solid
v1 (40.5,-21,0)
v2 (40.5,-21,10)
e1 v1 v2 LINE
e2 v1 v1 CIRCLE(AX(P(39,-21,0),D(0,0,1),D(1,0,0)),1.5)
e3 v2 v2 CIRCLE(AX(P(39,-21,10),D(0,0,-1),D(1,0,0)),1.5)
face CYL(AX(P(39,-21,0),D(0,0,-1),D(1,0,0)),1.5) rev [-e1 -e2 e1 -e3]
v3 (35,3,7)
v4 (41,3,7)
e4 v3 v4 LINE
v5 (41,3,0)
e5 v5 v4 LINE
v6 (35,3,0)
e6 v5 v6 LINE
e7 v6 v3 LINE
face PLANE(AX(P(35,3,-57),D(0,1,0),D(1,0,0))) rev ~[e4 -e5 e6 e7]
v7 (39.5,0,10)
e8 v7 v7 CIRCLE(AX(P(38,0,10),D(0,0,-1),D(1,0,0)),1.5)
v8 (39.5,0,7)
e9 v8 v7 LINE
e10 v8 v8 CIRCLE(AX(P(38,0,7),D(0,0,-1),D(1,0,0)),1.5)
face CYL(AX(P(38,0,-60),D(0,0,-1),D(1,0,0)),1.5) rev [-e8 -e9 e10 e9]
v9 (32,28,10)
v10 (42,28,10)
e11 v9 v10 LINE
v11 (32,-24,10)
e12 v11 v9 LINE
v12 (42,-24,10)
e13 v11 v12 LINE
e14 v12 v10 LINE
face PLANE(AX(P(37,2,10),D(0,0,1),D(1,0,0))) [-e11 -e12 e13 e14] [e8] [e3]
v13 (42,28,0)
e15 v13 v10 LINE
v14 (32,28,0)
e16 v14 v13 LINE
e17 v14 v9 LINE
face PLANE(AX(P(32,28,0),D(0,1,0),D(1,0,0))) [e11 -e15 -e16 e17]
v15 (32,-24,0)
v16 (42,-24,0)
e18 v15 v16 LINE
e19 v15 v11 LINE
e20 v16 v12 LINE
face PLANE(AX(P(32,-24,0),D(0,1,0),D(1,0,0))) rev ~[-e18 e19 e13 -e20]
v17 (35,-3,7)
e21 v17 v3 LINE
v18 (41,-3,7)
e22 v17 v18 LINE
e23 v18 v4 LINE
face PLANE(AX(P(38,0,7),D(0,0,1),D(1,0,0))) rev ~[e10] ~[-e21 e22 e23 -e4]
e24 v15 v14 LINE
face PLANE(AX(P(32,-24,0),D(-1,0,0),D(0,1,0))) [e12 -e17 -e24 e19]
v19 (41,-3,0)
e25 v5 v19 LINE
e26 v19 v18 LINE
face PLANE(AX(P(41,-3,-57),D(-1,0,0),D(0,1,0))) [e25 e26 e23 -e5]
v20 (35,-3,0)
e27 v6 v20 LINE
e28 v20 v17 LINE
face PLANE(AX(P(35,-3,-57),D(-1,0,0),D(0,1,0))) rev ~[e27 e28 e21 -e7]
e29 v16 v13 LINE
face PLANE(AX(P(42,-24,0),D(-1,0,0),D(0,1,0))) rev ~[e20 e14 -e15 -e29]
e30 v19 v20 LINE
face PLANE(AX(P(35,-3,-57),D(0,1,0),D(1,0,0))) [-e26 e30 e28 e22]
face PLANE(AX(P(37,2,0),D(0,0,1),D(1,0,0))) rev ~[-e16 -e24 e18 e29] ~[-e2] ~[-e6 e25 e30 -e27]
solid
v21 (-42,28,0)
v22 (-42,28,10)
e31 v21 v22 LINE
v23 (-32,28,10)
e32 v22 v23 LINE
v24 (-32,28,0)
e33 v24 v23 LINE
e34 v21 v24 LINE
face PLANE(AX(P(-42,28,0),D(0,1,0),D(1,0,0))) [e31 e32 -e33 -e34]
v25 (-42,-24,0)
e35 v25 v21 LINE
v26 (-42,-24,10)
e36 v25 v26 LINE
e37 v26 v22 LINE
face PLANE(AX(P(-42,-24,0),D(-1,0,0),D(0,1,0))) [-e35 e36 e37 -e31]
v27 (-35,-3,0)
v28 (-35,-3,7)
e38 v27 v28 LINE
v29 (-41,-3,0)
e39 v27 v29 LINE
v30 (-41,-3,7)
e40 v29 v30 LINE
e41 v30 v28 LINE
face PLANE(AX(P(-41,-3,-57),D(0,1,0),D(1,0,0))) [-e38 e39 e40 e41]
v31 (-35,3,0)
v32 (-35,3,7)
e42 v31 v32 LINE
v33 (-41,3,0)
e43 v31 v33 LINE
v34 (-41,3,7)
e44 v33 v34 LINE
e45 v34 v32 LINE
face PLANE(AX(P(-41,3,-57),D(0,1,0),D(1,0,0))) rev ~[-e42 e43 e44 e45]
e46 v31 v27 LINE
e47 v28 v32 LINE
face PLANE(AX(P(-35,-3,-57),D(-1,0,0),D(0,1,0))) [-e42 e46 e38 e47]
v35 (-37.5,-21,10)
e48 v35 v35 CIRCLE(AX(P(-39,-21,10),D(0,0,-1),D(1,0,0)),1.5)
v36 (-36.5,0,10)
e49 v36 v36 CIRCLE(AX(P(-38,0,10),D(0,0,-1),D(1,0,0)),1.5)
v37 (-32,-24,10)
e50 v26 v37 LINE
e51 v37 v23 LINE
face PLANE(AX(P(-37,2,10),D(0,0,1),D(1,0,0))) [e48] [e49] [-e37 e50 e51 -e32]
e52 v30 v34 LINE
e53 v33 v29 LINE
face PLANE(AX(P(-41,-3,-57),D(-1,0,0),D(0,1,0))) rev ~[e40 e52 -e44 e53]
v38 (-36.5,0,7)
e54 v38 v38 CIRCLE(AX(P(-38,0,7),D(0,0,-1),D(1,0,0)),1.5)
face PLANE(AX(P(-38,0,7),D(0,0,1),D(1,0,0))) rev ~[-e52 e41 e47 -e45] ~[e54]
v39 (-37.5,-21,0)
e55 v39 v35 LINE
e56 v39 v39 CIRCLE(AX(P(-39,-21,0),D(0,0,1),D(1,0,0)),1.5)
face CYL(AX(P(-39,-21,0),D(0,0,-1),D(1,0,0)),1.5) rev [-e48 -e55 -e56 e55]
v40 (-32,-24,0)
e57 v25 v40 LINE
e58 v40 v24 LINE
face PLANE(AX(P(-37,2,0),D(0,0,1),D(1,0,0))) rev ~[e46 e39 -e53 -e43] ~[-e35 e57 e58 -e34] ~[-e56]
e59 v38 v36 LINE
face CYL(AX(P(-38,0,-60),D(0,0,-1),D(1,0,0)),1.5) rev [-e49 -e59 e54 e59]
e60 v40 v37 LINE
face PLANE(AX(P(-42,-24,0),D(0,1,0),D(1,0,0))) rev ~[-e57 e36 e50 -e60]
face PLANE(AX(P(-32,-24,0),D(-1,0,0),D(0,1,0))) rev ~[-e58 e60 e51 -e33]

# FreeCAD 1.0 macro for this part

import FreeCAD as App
import Part
import Sketcher

V = App.Vector


def add_polygon(sketch, points):
    """Adds a closed chain of lines whose ends are joined by coincident constraints."""
    first, n = sketch.GeometryCount, len(points)
    for a, b in zip(points, points[1:] + points[:1]):
        sketch.addGeometry(Part.LineSegment(App.Vector(*a, 0), App.Vector(*b, 0)), False)
    for i in range(n):
        sketch.addConstraint(Sketcher.Constraint("Coincident", first + i, 2, first + (i + 1) % n, 1))

doc = App.newDocument("Part")
body = doc.addObject("PartDesign::Body", "Body")

sketch1 = doc.addObject("Sketcher::SketchObject", "Sketch")
body.addObject(sketch1)
sketch1.AttachmentSupport = (doc.XY_Plane, [""])
sketch1.MapMode = "FlatFace"
sketch1.AttachmentOffset = App.Placement(V(0, 0, -93), App.Rotation())
add_polygon(sketch1, [(87, 3), (87, -3), (93, -3), (93, 3)])
sketch1.addConstraint(Sketcher.Constraint("Vertical", 0))
sketch1.addConstraint(Sketcher.Constraint("Horizontal", 1))
sketch1.addConstraint(Sketcher.Constraint("Vertical", 2))
sketch1.addConstraint(Sketcher.Constraint("Horizontal", 3))
sketch1.addConstraint(Sketcher.Constraint("Equal", 3, 0))
sketch1.addConstraint(Sketcher.Constraint("DistanceX", 1, 1, 1, 2, 6.0))
sketch1.addConstraint(Sketcher.Constraint("DistanceX", -1, 1, 0, 2, 87.0))
sketch1.addConstraint(Sketcher.Constraint("DistanceY", 0, 2, -1, 1, 3.0))
pad1 = doc.addObject("PartDesign::Pad", "Pad")
body.addObject(pad1)
pad1.Profile = sketch1
pad1.Length = 64
body2 = doc.addObject("PartDesign::Body", "Body001")
body2.AllowCompound = True

sketch2 = doc.addObject("Sketcher::SketchObject", "Sketch001")
body2.addObject(sketch2)
sketch2.AttachmentSupport = (doc.getObject("XY_Plane001"), [""])
sketch2.MapMode = "FlatFace"
sketch2.AttachmentOffset = App.Placement(V(0, 0, -93), App.Rotation())
add_polygon(sketch2, [(11, 3), (11, -3), (17, -3), (17, 3)])
sketch2.addConstraint(Sketcher.Constraint("Vertical", 0))
sketch2.addConstraint(Sketcher.Constraint("Horizontal", 1))
sketch2.addConstraint(Sketcher.Constraint("Vertical", 2))
sketch2.addConstraint(Sketcher.Constraint("Horizontal", 3))
sketch2.addConstraint(Sketcher.Constraint("Equal", 3, 0))
sketch2.addConstraint(Sketcher.Constraint("DistanceX", 1, 1, 1, 2, 6.0))
sketch2.addConstraint(Sketcher.Constraint("DistanceX", -1, 1, 0, 2, 11.0))
sketch2.addConstraint(Sketcher.Constraint("DistanceY", 0, 2, -1, 1, 3.0))
pad2 = doc.addObject("PartDesign::Pad", "Pad001")
body2.addObject(pad2)
pad2.Profile = sketch2
pad2.Length = 64
doc.recompute()

boolean = doc.addObject("PartDesign::Boolean", "Boolean")
body2.addObject(boolean)
boolean.Type = "Fuse"
boolean.addObjects([body])
body3 = doc.addObject("PartDesign::Body", "Body002")
body3.AllowCompound = True
doc.recompute()

body2.Placement = App.Placement(V(-52, 0, 36), App.Rotation(V(0, 0, 1), 0))
boolean2 = doc.addObject("PartDesign::Boolean", "Boolean001")
body3.addObject(boolean2)
boolean2.Type = "Fuse"
boolean2.addObjects([body2])
body4 = doc.addObject("PartDesign::Body", "Body003")

sketch3 = doc.addObject("Sketcher::SketchObject", "Sketch002")
body4.addObject(sketch3)
sketch3.AttachmentSupport = (doc.getObject("XY_Plane003"), [""])
sketch3.MapMode = "FlatFace"
sketch3.AttachmentOffset = App.Placement(V(0, 0, -42), App.Rotation())
sketch3.addGeometry(Part.Circle(V(78, 41, 0), V(0, 0, 1), 1.5), False)
sketch3.addConstraint(Sketcher.Constraint("Diameter", 0, 3.0))
sketch3.addConstraint(Sketcher.Constraint("DistanceX", -1, 1, 0, 3, 78.0))
sketch3.addConstraint(Sketcher.Constraint("DistanceY", -1, 1, 0, 3, 41.0))
pad3 = doc.addObject("PartDesign::Pad", "Pad002")
body4.addObject(pad3)
pad3.Profile = sketch3
pad3.Length = 32
body5 = doc.addObject("PartDesign::Body", "Body004")
body5.AllowCompound = True

sketch4 = doc.addObject("Sketcher::SketchObject", "Sketch003")
body5.addObject(sketch4)
sketch4.AttachmentSupport = (doc.getObject("XY_Plane004"), [""])
sketch4.MapMode = "FlatFace"
sketch4.AttachmentOffset = App.Placement(V(0, 0, -42), App.Rotation())
sketch4.addGeometry(Part.Circle(V(26, 41, 0), V(0, 0, 1), 1.5), False)
sketch4.addConstraint(Sketcher.Constraint("Diameter", 0, 3.0))
sketch4.addConstraint(Sketcher.Constraint("DistanceX", -1, 1, 0, 3, 26.0))
sketch4.addConstraint(Sketcher.Constraint("DistanceY", -1, 1, 0, 3, 41.0))
pad4 = doc.addObject("PartDesign::Pad", "Pad003")
body5.addObject(pad4)
pad4.Profile = sketch4
pad4.Length = 32
doc.recompute()

boolean3 = doc.addObject("PartDesign::Boolean", "Boolean002")
body5.addObject(boolean3)
boolean3.Type = "Fuse"
boolean3.addObjects([body4])
body6 = doc.addObject("PartDesign::Body", "Body005")
body6.AllowCompound = True
doc.recompute()

body5.Placement = App.Placement(V(-52, 0, 36), App.Rotation(V(0, 0, 1), 0))
boolean4 = doc.addObject("PartDesign::Boolean", "Boolean003")
body6.addObject(boolean4)
boolean4.Type = "Fuse"
boolean4.addObjects([body5])
body7 = doc.addObject("PartDesign::Body", "Body006")

sketch5 = doc.addObject("Sketcher::SketchObject", "Sketch004")
body7.addObject(sketch5)
sketch5.AttachmentSupport = (doc.getObject("XY_Plane006"), [""])
sketch5.MapMode = "FlatFace"
sketch5.AttachmentOffset = App.Placement(V(0, 0, -60), App.Rotation())
sketch5.addGeometry(Part.Circle(V(14, 0, 0), V(0, 0, 1), 1.5), False)
sketch5.addConstraint(Sketcher.Constraint("PointOnObject", 0, 3, -1))
sketch5.addConstraint(Sketcher.Constraint("Diameter", 0, 3.0))
sketch5.addConstraint(Sketcher.Constraint("DistanceX", -1, 1, 0, 3, 14.0))
pad5 = doc.addObject("PartDesign::Pad", "Pad004")
body7.addObject(pad5)
pad5.Profile = sketch5
pad5.Length = 100
body8 = doc.addObject("PartDesign::Body", "Body007")
body8.AllowCompound = True

sketch6 = doc.addObject("Sketcher::SketchObject", "Sketch005")
body8.addObject(sketch6)
sketch6.AttachmentSupport = (doc.getObject("XY_Plane007"), [""])
sketch6.MapMode = "FlatFace"
sketch6.AttachmentOffset = App.Placement(V(0, 0, -60), App.Rotation())
sketch6.addGeometry(Part.Circle(V(90, 0, 0), V(0, 0, 1), 1.5), False)
sketch6.addConstraint(Sketcher.Constraint("PointOnObject", 0, 3, -1))
sketch6.addConstraint(Sketcher.Constraint("Diameter", 0, 3.0))
sketch6.addConstraint(Sketcher.Constraint("DistanceX", -1, 1, 0, 3, 90.0))
pad6 = doc.addObject("PartDesign::Pad", "Pad005")
body8.addObject(pad6)
pad6.Profile = sketch6
pad6.Length = 100
doc.recompute()

boolean5 = doc.addObject("PartDesign::Boolean", "Boolean004")
body8.addObject(boolean5)
boolean5.Type = "Fuse"
boolean5.addObjects([body7])
body9 = doc.addObject("PartDesign::Body", "Body008")
body9.AllowCompound = True
doc.recompute()

body8.Placement = App.Placement(V(-52, 0, 0), App.Rotation(V(0, 0, 1), 0))
boolean6 = doc.addObject("PartDesign::Boolean", "Boolean005")
body9.addObject(boolean6)
boolean6.Type = "Fuse"
boolean6.addObjects([body8])
doc.recompute()

boolean7 = doc.addObject("PartDesign::Boolean", "Boolean006")
body9.addObject(boolean7)
boolean7.Type = "Fuse"
boolean7.addObjects([body6])
body10 = doc.addObject("PartDesign::Body", "Body009")

sketch7 = doc.addObject("Sketcher::SketchObject", "Sketch006")
body10.addObject(sketch7)
sketch7.AttachmentSupport = (doc.getObject("XY_Plane009"), [""])
sketch7.MapMode = "FlatFace"
sketch7.addGeometry(Part.Circle(V(39, -21, 0), V(0, 0, 1), 1.5), False)
sketch7.addConstraint(Sketcher.Constraint("Diameter", 0, 3.0))
sketch7.addConstraint(Sketcher.Constraint("DistanceX", -1, 1, 0, 3, 39.0))
sketch7.addConstraint(Sketcher.Constraint("DistanceY", 0, 3, -1, 1, 21.0))
pad7 = doc.addObject("PartDesign::Pad", "Pad006")
body10.addObject(pad7)
pad7.Profile = sketch7
pad7.Length = 100
body11 = doc.addObject("PartDesign::Body", "Body010")
body11.AllowCompound = True

sketch8 = doc.addObject("Sketcher::SketchObject", "Sketch007")
body11.addObject(sketch8)
sketch8.AttachmentSupport = (doc.getObject("XY_Plane010"), [""])
sketch8.MapMode = "FlatFace"
sketch8.addGeometry(Part.Circle(V(-39, -21, 0), V(0, 0, 1), 1.5), False)
sketch8.addConstraint(Sketcher.Constraint("Diameter", 0, 3.0))
sketch8.addConstraint(Sketcher.Constraint("DistanceX", 0, 3, -1, 1, 39.0))
sketch8.addConstraint(Sketcher.Constraint("DistanceY", 0, 3, -1, 1, 21.0))
pad8 = doc.addObject("PartDesign::Pad", "Pad007")
body11.addObject(pad8)
pad8.Profile = sketch8
pad8.Length = 100
doc.recompute()

boolean8 = doc.addObject("PartDesign::Boolean", "Boolean007")
body11.addObject(boolean8)
boolean8.Type = "Fuse"
boolean8.addObjects([body10])
body12 = doc.addObject("PartDesign::Body", "Body011")

sketch9 = doc.addObject("Sketcher::SketchObject", "Sketch008")
body12.addObject(sketch9)
sketch9.AttachmentSupport = (doc.getObject("XY_Plane011"), [""])
sketch9.MapMode = "FlatFace"
add_polygon(sketch9, [(-42, 28), (-42, -24), (-32, -24), (-32, 28)])
sketch9.addConstraint(Sketcher.Constraint("Vertical", 0))
sketch9.addConstraint(Sketcher.Constraint("Horizontal", 1))
sketch9.addConstraint(Sketcher.Constraint("Vertical", 2))
sketch9.addConstraint(Sketcher.Constraint("Horizontal", 3))
sketch9.addConstraint(Sketcher.Constraint("DistanceX", 1, 1, 1, 2, 10.0))
sketch9.addConstraint(Sketcher.Constraint("DistanceY", 0, 2, 0, 1, 52.0))
sketch9.addConstraint(Sketcher.Constraint("DistanceX", 0, 2, -1, 1, 42.0))
sketch9.addConstraint(Sketcher.Constraint("DistanceY", 0, 2, -1, 1, 24.0))
pad9 = doc.addObject("PartDesign::Pad", "Pad008")
body12.addObject(pad9)
pad9.Profile = sketch9
pad9.Length = 10
body13 = doc.addObject("PartDesign::Body", "Body012")
body13.AllowCompound = True

sketch10 = doc.addObject("Sketcher::SketchObject", "Sketch009")
body13.addObject(sketch10)
sketch10.AttachmentSupport = (doc.getObject("XY_Plane012"), [""])
sketch10.MapMode = "FlatFace"
add_polygon(sketch10, [(32, 28), (32, -24), (42, -24), (42, 28)])
sketch10.addConstraint(Sketcher.Constraint("Vertical", 0))
sketch10.addConstraint(Sketcher.Constraint("Horizontal", 1))
sketch10.addConstraint(Sketcher.Constraint("Vertical", 2))
sketch10.addConstraint(Sketcher.Constraint("Horizontal", 3))
sketch10.addConstraint(Sketcher.Constraint("DistanceX", 1, 1, 1, 2, 10.0))
sketch10.addConstraint(Sketcher.Constraint("DistanceY", 0, 2, 0, 1, 52.0))
sketch10.addConstraint(Sketcher.Constraint("DistanceX", -1, 1, 0, 2, 32.0))
sketch10.addConstraint(Sketcher.Constraint("DistanceY", 0, 2, -1, 1, 24.0))
pad10 = doc.addObject("PartDesign::Pad", "Pad009")
body13.addObject(pad10)
pad10.Profile = sketch10
pad10.Length = 10
doc.recompute()

boolean9 = doc.addObject("PartDesign::Boolean", "Boolean008")
body13.addObject(boolean9)
boolean9.Type = "Fuse"
boolean9.addObjects([body12])
doc.recompute()

boolean10 = doc.addObject("PartDesign::Boolean", "Boolean009")
body13.addObject(boolean10)
boolean10.Type = "Cut"
boolean10.addObjects([body11])
doc.recompute()

boolean11 = doc.addObject("PartDesign::Boolean", "Boolean010")
body13.addObject(boolean11)
boolean11.Type = "Cut"
boolean11.addObjects([body9])
doc.recompute()

boolean12 = doc.addObject("PartDesign::Boolean", "Boolean011")
body13.addObject(boolean12)
boolean12.Type = "Cut"
boolean12.addObjects([body3])

doc.recompute()
